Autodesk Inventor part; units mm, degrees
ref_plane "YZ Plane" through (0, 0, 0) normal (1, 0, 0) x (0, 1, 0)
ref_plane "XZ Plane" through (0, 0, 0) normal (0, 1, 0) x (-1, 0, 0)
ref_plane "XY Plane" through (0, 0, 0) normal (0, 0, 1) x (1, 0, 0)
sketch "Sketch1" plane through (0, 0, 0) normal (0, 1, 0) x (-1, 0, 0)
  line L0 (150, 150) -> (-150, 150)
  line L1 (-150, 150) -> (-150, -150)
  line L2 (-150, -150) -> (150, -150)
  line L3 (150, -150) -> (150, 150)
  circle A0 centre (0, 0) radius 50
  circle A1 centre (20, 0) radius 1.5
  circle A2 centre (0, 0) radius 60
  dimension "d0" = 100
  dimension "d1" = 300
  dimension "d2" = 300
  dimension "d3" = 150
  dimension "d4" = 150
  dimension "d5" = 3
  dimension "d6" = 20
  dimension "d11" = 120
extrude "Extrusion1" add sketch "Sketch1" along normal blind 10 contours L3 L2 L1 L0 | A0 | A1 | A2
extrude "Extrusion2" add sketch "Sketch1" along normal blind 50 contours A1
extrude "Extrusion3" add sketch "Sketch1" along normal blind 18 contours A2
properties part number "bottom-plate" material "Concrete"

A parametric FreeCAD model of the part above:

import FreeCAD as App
import Part
import Sketcher

V = App.Vector

doc = App.newDocument("Part")
params = doc.addObject("Spreadsheet::Sheet", "Params")
for row, (alias, value) in enumerate([
    ("sketch1_width", "300 mm"),
    ("pad1_length", "10 mm"),
    ("sketch2_diameter", "3 mm"),
    ("pad2_length", "50 mm"),
    ("sketch3_diameter", "120 mm"),
    ("sketch3_diameter2", "100 mm"),
    ("pad3_length", "18 mm"),
], start=1):
    params.set(f"A{row}", alias)
    params.set(f"B{row}", "=" + value)
    params.setAlias(f"B{row}", alias)

body = doc.addObject("PartDesign::Body", "Body")

# Sketch on XZ plane
sketch1 = body.newObject("Sketcher::SketchObject", "Sketch")
sketch1.AttachmentSupport = (doc.getObject("XZ_Plane"), [""])
sketch1.MapMode = "FlatFace"
sketch1.addGeometry([
    Part.LineSegment(V(-150, -150, 0), V(-150, 150, 0)),
    Part.LineSegment(V(-150, 150, 0), V(150, 150, 0)),
    Part.LineSegment(V(150, 150, 0), V(150, -150, 0)),
    Part.LineSegment(V(150, -150, 0), V(-150, -150, 0)),
], False)
sketch1.addConstraint([
    Sketcher.Constraint("Coincident", 0, 2, 1, 1),
    Sketcher.Constraint("Coincident", 1, 2, 2, 1),
    Sketcher.Constraint("Coincident", 2, 2, 3, 1),
    Sketcher.Constraint("Coincident", 3, 2, 0, 1),
    Sketcher.Constraint("Vertical", 0),
    Sketcher.Constraint("Horizontal", 1),
    Sketcher.Constraint("Vertical", 2),
    Sketcher.Constraint("Horizontal", 3),
    Sketcher.Constraint("Symmetric", 0, 2, 2, 2, -1, 1),
    Sketcher.Constraint("Equal", 3, 0),
    Sketcher.Constraint("DistanceX", 1, 1, 1, 2, 300.0),
])
sketch1.setExpression("Constraints[10]", "Params.sketch1_width")
pad1 = body.newObject("PartDesign::Pad", "Pad")
pad1.Profile = sketch1
pad1.setExpression("Length", "Params.pad1_length")
pad1.Reversed = True

# Sketch on XZ plane
sketch2 = body.newObject("Sketcher::SketchObject", "Sketch001")
sketch2.AttachmentSupport = (doc.getObject("XZ_Plane"), [""])
sketch2.MapMode = "FlatFace"
sketch2.addGeometry(Part.Circle(V(-20, 0, 0), V(0, 0, 1), 1.5), False)
sketch2.addConstraint([
    Sketcher.Constraint("PointOnObject", 0, 3, -1),
    Sketcher.Constraint("Diameter", 0, 3.0),
    Sketcher.Constraint("DistanceX", 0, 3, -1, 1, 20.0),
])
sketch2.setExpression("Constraints[1]", "Params.sketch2_diameter")
pad2 = body.newObject("PartDesign::Pad", "Pad001")
pad2.Profile = sketch2
pad2.setExpression("Length", "Params.pad2_length")
pad2.Reversed = True

# Sketch on XZ plane
sketch3 = body.newObject("Sketcher::SketchObject", "Sketch002")
sketch3.AttachmentSupport = (doc.getObject("XZ_Plane"), [""])
sketch3.MapMode = "FlatFace"
sketch3.addGeometry([
    Part.Circle(V(0, 0, 0), V(0, 0, 1), 60),
    Part.Circle(V(0, 0, 0), V(0, 0, 1), 50),
], False)
sketch3.addConstraint([
    Sketcher.Constraint("Coincident", 0, 3, -1, 1),
    Sketcher.Constraint("Coincident", 1, 3, -1, 1),
    Sketcher.Constraint("Diameter", 0, 120.0),
    Sketcher.Constraint("Diameter", 1, 100.0),
])
sketch3.setExpression("Constraints[2]", "Params.sketch3_diameter")
sketch3.setExpression("Constraints[3]", "Params.sketch3_diameter2")
pad3 = body.newObject("PartDesign::Pad", "Pad002")
pad3.Profile = sketch3
pad3.setExpression("Length", "Params.pad3_length")
pad3.Reversed = True

doc.recompute()
